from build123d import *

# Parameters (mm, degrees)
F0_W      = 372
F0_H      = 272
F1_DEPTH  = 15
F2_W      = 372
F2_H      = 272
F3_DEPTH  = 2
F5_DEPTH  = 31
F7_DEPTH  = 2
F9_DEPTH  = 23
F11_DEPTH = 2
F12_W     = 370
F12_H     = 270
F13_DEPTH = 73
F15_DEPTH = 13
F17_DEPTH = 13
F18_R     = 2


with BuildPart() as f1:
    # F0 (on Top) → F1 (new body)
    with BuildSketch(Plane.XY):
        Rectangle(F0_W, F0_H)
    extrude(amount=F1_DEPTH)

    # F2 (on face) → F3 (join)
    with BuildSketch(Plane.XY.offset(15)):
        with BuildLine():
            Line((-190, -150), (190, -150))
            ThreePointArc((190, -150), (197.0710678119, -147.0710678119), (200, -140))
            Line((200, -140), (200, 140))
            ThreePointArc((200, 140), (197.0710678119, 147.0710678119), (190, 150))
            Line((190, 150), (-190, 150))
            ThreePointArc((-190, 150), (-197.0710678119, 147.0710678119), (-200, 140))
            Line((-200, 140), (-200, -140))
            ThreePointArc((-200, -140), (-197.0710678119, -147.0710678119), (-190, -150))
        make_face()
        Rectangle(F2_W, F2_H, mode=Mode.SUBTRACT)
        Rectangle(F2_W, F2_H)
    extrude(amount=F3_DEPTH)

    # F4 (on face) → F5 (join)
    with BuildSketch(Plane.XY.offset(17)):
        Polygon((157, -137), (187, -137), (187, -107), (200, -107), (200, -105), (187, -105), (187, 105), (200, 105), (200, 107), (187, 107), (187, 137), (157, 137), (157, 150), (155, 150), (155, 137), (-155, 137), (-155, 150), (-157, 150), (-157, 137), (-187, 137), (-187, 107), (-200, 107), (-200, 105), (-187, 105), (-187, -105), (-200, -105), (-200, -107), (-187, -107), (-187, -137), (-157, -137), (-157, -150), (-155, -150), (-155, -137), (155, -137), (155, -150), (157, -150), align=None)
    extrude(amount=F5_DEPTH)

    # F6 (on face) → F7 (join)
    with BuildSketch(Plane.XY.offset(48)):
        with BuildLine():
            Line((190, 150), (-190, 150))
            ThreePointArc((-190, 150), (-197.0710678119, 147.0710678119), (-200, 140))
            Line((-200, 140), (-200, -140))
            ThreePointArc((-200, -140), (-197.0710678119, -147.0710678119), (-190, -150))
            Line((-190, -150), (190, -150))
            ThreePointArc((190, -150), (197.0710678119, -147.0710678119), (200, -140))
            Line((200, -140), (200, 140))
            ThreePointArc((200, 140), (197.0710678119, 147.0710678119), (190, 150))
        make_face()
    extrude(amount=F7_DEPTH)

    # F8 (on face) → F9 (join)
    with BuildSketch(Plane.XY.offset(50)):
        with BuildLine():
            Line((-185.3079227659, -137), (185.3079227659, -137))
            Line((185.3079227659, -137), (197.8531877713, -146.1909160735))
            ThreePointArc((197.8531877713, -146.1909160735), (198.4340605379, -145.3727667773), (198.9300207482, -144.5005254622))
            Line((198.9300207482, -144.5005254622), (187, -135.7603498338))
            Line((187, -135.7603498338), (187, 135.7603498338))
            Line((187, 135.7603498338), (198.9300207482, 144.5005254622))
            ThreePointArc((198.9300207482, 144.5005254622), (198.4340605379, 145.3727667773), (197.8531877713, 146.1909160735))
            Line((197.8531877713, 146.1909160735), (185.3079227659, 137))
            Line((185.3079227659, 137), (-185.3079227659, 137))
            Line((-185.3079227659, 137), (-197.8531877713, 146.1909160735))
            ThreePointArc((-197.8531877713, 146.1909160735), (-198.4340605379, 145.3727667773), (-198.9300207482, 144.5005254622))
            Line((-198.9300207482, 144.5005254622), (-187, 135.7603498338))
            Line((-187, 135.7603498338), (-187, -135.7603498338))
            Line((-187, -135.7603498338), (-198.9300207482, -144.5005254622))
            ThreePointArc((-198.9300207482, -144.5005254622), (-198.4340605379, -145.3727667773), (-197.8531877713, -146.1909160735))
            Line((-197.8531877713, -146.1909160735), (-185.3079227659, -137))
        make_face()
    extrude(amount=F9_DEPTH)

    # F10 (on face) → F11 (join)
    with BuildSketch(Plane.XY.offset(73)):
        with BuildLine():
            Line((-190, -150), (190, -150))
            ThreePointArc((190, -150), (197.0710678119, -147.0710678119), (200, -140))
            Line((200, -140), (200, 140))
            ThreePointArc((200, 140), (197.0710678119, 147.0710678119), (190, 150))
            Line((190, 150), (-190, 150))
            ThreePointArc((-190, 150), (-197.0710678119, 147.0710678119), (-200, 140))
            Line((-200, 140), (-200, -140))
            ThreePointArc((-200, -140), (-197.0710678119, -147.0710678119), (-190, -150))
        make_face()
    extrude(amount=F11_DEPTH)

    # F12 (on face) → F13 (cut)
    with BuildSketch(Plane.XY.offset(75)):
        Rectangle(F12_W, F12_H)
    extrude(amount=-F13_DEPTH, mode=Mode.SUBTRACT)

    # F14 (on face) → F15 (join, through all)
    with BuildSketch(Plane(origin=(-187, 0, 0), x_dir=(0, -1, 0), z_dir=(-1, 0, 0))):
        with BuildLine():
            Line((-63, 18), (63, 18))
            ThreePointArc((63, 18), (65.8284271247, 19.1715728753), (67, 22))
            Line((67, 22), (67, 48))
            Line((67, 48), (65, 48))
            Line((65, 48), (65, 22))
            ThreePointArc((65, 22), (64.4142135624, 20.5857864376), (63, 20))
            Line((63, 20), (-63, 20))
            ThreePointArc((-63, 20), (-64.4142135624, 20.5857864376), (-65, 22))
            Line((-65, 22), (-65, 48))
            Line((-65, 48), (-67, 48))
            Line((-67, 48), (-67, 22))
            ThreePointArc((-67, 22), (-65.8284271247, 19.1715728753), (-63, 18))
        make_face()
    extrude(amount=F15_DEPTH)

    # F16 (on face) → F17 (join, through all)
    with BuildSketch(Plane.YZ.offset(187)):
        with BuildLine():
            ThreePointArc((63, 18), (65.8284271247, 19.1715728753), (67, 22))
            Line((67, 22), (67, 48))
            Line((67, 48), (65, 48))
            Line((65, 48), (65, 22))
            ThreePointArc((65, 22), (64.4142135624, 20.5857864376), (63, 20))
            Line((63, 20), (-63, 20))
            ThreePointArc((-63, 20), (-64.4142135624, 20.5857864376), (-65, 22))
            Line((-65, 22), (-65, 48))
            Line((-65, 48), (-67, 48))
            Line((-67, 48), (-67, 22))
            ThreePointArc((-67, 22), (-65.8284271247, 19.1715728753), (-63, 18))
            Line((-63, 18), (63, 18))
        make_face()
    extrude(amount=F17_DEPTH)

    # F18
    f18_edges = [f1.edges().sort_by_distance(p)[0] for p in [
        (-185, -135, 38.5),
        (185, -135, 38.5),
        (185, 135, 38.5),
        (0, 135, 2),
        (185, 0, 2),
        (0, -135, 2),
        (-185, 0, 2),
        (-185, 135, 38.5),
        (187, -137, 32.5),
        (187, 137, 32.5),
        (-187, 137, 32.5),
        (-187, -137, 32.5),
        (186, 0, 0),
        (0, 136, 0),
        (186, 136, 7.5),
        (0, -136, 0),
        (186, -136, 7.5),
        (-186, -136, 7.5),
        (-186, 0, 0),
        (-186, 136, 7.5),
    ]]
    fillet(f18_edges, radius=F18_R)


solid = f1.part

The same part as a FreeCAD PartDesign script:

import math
import FreeCAD as App
import Part
import Sketcher

V = App.Vector


def edges_at(feature, points):
    """Names of the edges that pass closest to the given points."""
    edges = feature.Shape.Edges
    near = lambda p: min(range(len(edges)), key=lambda i: edges[i].distToShape(Part.Vertex(*p))[0])
    return sorted({f"Edge{near(p) + 1}" for p in points})


def add_polygon(sketch, points):
    """Adds a closed chain of lines whose ends are joined by coincident constraints."""
    first, n = sketch.GeometryCount, len(points)
    for a, b in zip(points, points[1:] + points[:1]):
        sketch.addGeometry(Part.LineSegment(App.Vector(*a, 0), App.Vector(*b, 0)), False)
    for i in range(n):
        sketch.addConstraint(Sketcher.Constraint("Coincident", first + i, 2, first + (i + 1) % n, 1))

doc = App.newDocument("Part")
body = doc.addObject("PartDesign::Body", "Body")

# Sketch on XY plane
sketch1 = body.newObject("Sketcher::SketchObject", "Sketch")
sketch1.AttachmentSupport = (doc.getObject("XY_Plane"), [""])
sketch1.MapMode = "FlatFace"
add_polygon(sketch1, [(-186, 136), (-186, -136), (186, -136), (186, 136)])  # lines 0-3
sketch1.addConstraint(Sketcher.Constraint("Vertical", 0))
sketch1.addConstraint(Sketcher.Constraint("Horizontal", 1))
sketch1.addConstraint(Sketcher.Constraint("Vertical", 2))
sketch1.addConstraint(Sketcher.Constraint("Horizontal", 3))
sketch1.addConstraint(Sketcher.Constraint("Symmetric", 0, 2, 2, 2, -1, 1))
sketch1.addConstraint(Sketcher.Constraint("DistanceX", 1, 1, 1, 2, 372.0))
sketch1.addConstraint(Sketcher.Constraint("DistanceY", 0, 2, 0, 1, 272.0))
pad1 = body.newObject("PartDesign::Pad", "Pad")
pad1.Profile = sketch1
pad1.Length = 15

# Sketch on XY plane
sketch2 = body.newObject("Sketcher::SketchObject", "Sketch001")
sketch2.AttachmentSupport = (doc.getObject("XY_Plane"), [""])
sketch2.MapMode = "FlatFace"
sketch2.AttachmentOffset = App.Placement(V(0, 0, 15), App.Rotation())
sketch2.addGeometry(Part.LineSegment(V(-190, -150, 0), V(190, -150, 0)), False)
sketch2.addGeometry(Part.ArcOfCircle(Part.Circle(V(190, -140, 0), V(0, 0, 1), 10), math.radians(-90), math.radians(0)), False)
sketch2.addGeometry(Part.LineSegment(V(200, -140, 0), V(200, 140, 0)), False)
sketch2.addGeometry(Part.ArcOfCircle(Part.Circle(V(190, 140, 0), V(0, 0, 1), 10), math.radians(0), math.radians(90)), False)
sketch2.addGeometry(Part.LineSegment(V(190, 150, 0), V(-190, 150, 0)), False)
sketch2.addGeometry(Part.ArcOfCircle(Part.Circle(V(-190, 140, 0), V(0, 0, 1), 10), math.radians(90), math.radians(180)), False)
sketch2.addGeometry(Part.LineSegment(V(-200, 140, 0), V(-200, -140, 0)), False)
sketch2.addGeometry(Part.ArcOfCircle(Part.Circle(V(-190, -140, 0), V(0, 0, 1), 10), math.radians(180), math.radians(270)), False)
sketch2.addConstraint(Sketcher.Constraint("Tangent", 0, 2, 1, 1))
sketch2.addConstraint(Sketcher.Constraint("Tangent", 1, 2, 2, 1))
sketch2.addConstraint(Sketcher.Constraint("Tangent", 2, 2, 3, 1))
sketch2.addConstraint(Sketcher.Constraint("Tangent", 3, 2, 4, 1))
sketch2.addConstraint(Sketcher.Constraint("Tangent", 4, 2, 5, 1))
sketch2.addConstraint(Sketcher.Constraint("Tangent", 5, 2, 6, 1))
sketch2.addConstraint(Sketcher.Constraint("Tangent", 6, 2, 7, 1))
sketch2.addConstraint(Sketcher.Constraint("Tangent", 7, 2, 0, 1))
sketch2.addConstraint(Sketcher.Constraint("Horizontal", 0))
sketch2.addConstraint(Sketcher.Constraint("Vertical", 2))
sketch2.addConstraint(Sketcher.Constraint("Horizontal", 4))
sketch2.addConstraint(Sketcher.Constraint("Vertical", 6))
sketch2.addConstraint(Sketcher.Constraint("Equal", 1, 3))
sketch2.addConstraint(Sketcher.Constraint("Equal", 3, 5))
sketch2.addConstraint(Sketcher.Constraint("Equal", 5, 7))
sketch2.addConstraint(Sketcher.Constraint("Symmetric", 1, 3, 5, 3, -1, 1))
sketch2.addConstraint(Sketcher.Constraint("Radius", 1, 10.0))
sketch2.addConstraint(Sketcher.Constraint("DistanceX", 0, 1, 0, 2, 380.0))
sketch2.addConstraint(Sketcher.Constraint("DistanceY", 2, 1, 2, 2, 280.0))
pad2 = body.newObject("PartDesign::Pad", "Pad001")
pad2.Profile = sketch2
pad2.Length = 2

# Sketch on XY plane
sketch3 = body.newObject("Sketcher::SketchObject", "Sketch002")
sketch3.AttachmentSupport = (doc.getObject("XY_Plane"), [""])
sketch3.MapMode = "FlatFace"
sketch3.AttachmentOffset = App.Placement(V(0, 0, 17), App.Rotation())
add_polygon(sketch3, [(157, -137), (187, -137), (187, -107), (200, -107), (200, -105), (187, -105), (187, 105), (200, 105), (200, 107), (187, 107), (187, 137), (157, 137), (157, 150), (155, 150), (155, 137), (-155, 137), (-155, 150), (-157, 150), (-157, 137), (-187, 137), (-187, 107), (-200, 107), (-200, 105), (-187, 105), (-187, -105), (-200, -105), (-200, -107), (-187, -107), (-187, -137), (-157, -137), (-157, -150), (-155, -150), (-155, -137), (155, -137), (155, -150), (157, -150)])  # lines 0-35
sketch3.addConstraint(Sketcher.Constraint("Horizontal", 0))
sketch3.addConstraint(Sketcher.Constraint("Vertical", 1))
sketch3.addConstraint(Sketcher.Constraint("Horizontal", 2))
sketch3.addConstraint(Sketcher.Constraint("Vertical", 3))
sketch3.addConstraint(Sketcher.Constraint("Horizontal", 4))
sketch3.addConstraint(Sketcher.Constraint("Vertical", 5))
sketch3.addConstraint(Sketcher.Constraint("Horizontal", 6))
sketch3.addConstraint(Sketcher.Constraint("Vertical", 7))
sketch3.addConstraint(Sketcher.Constraint("Horizontal", 8))
sketch3.addConstraint(Sketcher.Constraint("Vertical", 9))
sketch3.addConstraint(Sketcher.Constraint("Horizontal", 10))
sketch3.addConstraint(Sketcher.Constraint("Vertical", 11))
sketch3.addConstraint(Sketcher.Constraint("Horizontal", 12))
sketch3.addConstraint(Sketcher.Constraint("Vertical", 13))
sketch3.addConstraint(Sketcher.Constraint("Horizontal", 14))
sketch3.addConstraint(Sketcher.Constraint("Vertical", 15))
sketch3.addConstraint(Sketcher.Constraint("Horizontal", 16))
sketch3.addConstraint(Sketcher.Constraint("Vertical", 17))
sketch3.addConstraint(Sketcher.Constraint("Horizontal", 18))
sketch3.addConstraint(Sketcher.Constraint("Vertical", 19))
sketch3.addConstraint(Sketcher.Constraint("Horizontal", 20))
sketch3.addConstraint(Sketcher.Constraint("Vertical", 21))
sketch3.addConstraint(Sketcher.Constraint("Horizontal", 22))
sketch3.addConstraint(Sketcher.Constraint("Vertical", 23))
sketch3.addConstraint(Sketcher.Constraint("Horizontal", 24))
sketch3.addConstraint(Sketcher.Constraint("Vertical", 25))
sketch3.addConstraint(Sketcher.Constraint("Horizontal", 26))
sketch3.addConstraint(Sketcher.Constraint("Vertical", 27))
sketch3.addConstraint(Sketcher.Constraint("Horizontal", 28))
sketch3.addConstraint(Sketcher.Constraint("Vertical", 29))
sketch3.addConstraint(Sketcher.Constraint("Horizontal", 30))
sketch3.addConstraint(Sketcher.Constraint("Vertical", 31))
sketch3.addConstraint(Sketcher.Constraint("Horizontal", 32))
sketch3.addConstraint(Sketcher.Constraint("Vertical", 33))
sketch3.addConstraint(Sketcher.Constraint("Horizontal", 34))
sketch3.addConstraint(Sketcher.Constraint("Vertical", 35))
sketch3.addConstraint(Sketcher.Constraint("Symmetric", 0, 2, 18, 2, -1, 1))
sketch3.addConstraint(Sketcher.Constraint("Symmetric", 2, 2, 20, 2, -1, 1))
sketch3.addConstraint(Sketcher.Constraint("Symmetric", 4, 2, 22, 2, -1, 1))
sketch3.addConstraint(Sketcher.Constraint("Symmetric", 6, 2, 24, 2, -1, 1))
sketch3.addConstraint(Sketcher.Constraint("Symmetric", 8, 2, 26, 2, -1, 1))
sketch3.addConstraint(Sketcher.Constraint("Symmetric", 10, 2, 28, 2, -1, 1))
sketch3.addConstraint(Sketcher.Constraint("Symmetric", 12, 2, 30, 2, -1, 1))
sketch3.addConstraint(Sketcher.Constraint("Symmetric", 14, 2, 32, 2, -1, 1))
sketch3.addConstraint(Sketcher.Constraint("Symmetric", 16, 2, 34, 2, -1, 1))
sketch3.addConstraint(Sketcher.Constraint("Symmetric", 12, 2, 15, 2, -2))
sketch3.addConstraint(Sketcher.Constraint("Symmetric", 10, 2, 17, 2, -2))
sketch3.addConstraint(Sketcher.Constraint("Symmetric", 8, 2, 19, 2, -2))
sketch3.addConstraint(Sketcher.Constraint("Symmetric", 6, 2, 21, 2, -2))
sketch3.addConstraint(Sketcher.Constraint("Horizontal", 10, 2, 13, 2))
sketch3.addConstraint(Sketcher.Constraint("Vertical", 1, 2, 4, 2))
sketch3.addConstraint(Sketcher.Constraint("Equal", 28, 1))
sketch3.addConstraint(Sketcher.Constraint("Equal", 34, 3))
sketch3.addConstraint(Sketcher.Constraint("Equal", 26, 11))
sketch3.addConstraint(Sketcher.Constraint("DistanceX", 0, 1, 0, 2, 30.0))
sketch3.addConstraint(Sketcher.Constraint("DistanceX", 2, 1, 2, 2, 13.0))
sketch3.addConstraint(Sketcher.Constraint("DistanceX", 12, 2, 12, 1, 2.0))
sketch3.addConstraint(Sketcher.Constraint("DistanceX", 14, 2, 14, 1, 310.0))
sketch3.addConstraint(Sketcher.Constraint("DistanceY", 5, 1, 5, 2, 210.0))
pad3 = body.newObject("PartDesign::Pad", "Pad002")
pad3.Profile = sketch3
pad3.Length = 31

# Sketch on XY plane
sketch4 = body.newObject("Sketcher::SketchObject", "Sketch003")
sketch4.AttachmentSupport = (doc.getObject("XY_Plane"), [""])
sketch4.MapMode = "FlatFace"
sketch4.AttachmentOffset = App.Placement(V(0, 0, 48), App.Rotation())
sketch4.addGeometry(Part.LineSegment(V(190, 150, 0), V(-190, 150, 0)), False)
sketch4.addGeometry(Part.ArcOfCircle(Part.Circle(V(-190, 140, 0), V(0, 0, 1), 10), math.radians(90), math.radians(180)), False)
sketch4.addGeometry(Part.LineSegment(V(-200, 140, 0), V(-200, -140, 0)), False)
sketch4.addGeometry(Part.ArcOfCircle(Part.Circle(V(-190, -140, 0), V(0, 0, 1), 10), math.radians(180), math.radians(270)), False)
sketch4.addGeometry(Part.LineSegment(V(-190, -150, 0), V(190, -150, 0)), False)
sketch4.addGeometry(Part.ArcOfCircle(Part.Circle(V(190, -140, 0), V(0, 0, 1), 10), math.radians(-90), math.radians(0)), False)
sketch4.addGeometry(Part.LineSegment(V(200, -140, 0), V(200, 140, 0)), False)
sketch4.addGeometry(Part.ArcOfCircle(Part.Circle(V(190, 140, 0), V(0, 0, 1), 10), math.radians(0), math.radians(90)), False)
sketch4.addConstraint(Sketcher.Constraint("Tangent", 0, 2, 1, 1))
sketch4.addConstraint(Sketcher.Constraint("Tangent", 1, 2, 2, 1))
sketch4.addConstraint(Sketcher.Constraint("Tangent", 2, 2, 3, 1))
sketch4.addConstraint(Sketcher.Constraint("Tangent", 3, 2, 4, 1))
sketch4.addConstraint(Sketcher.Constraint("Tangent", 4, 2, 5, 1))
sketch4.addConstraint(Sketcher.Constraint("Tangent", 5, 2, 6, 1))
sketch4.addConstraint(Sketcher.Constraint("Tangent", 6, 2, 7, 1))
sketch4.addConstraint(Sketcher.Constraint("Tangent", 7, 2, 0, 1))
sketch4.addConstraint(Sketcher.Constraint("Horizontal", 0))
sketch4.addConstraint(Sketcher.Constraint("Vertical", 2))
sketch4.addConstraint(Sketcher.Constraint("Horizontal", 4))
sketch4.addConstraint(Sketcher.Constraint("Vertical", 6))
sketch4.addConstraint(Sketcher.Constraint("Equal", 1, 3))
sketch4.addConstraint(Sketcher.Constraint("Equal", 3, 5))
sketch4.addConstraint(Sketcher.Constraint("Equal", 5, 7))
sketch4.addConstraint(Sketcher.Constraint("Symmetric", 1, 3, 5, 3, -1, 1))
sketch4.addConstraint(Sketcher.Constraint("Radius", 1, 10.0))
sketch4.addConstraint(Sketcher.Constraint("DistanceX", 0, 2, 0, 1, 380.0))
sketch4.addConstraint(Sketcher.Constraint("DistanceY", 2, 2, 2, 1, 280.0))
pad4 = body.newObject("PartDesign::Pad", "Pad003")
pad4.Profile = sketch4
pad4.Length = 2

# Sketch on XY plane
sketch5 = body.newObject("Sketcher::SketchObject", "Sketch004")
sketch5.AttachmentSupport = (doc.getObject("XY_Plane"), [""])
sketch5.MapMode = "FlatFace"
sketch5.AttachmentOffset = App.Placement(V(0, 0, 50), App.Rotation())
sketch5.addGeometry(Part.LineSegment(V(-185.3, -137, 0), V(185.3, -137, 0)), False)
sketch5.addGeometry(Part.LineSegment(V(185.3, -137, 0), V(197.9, -146.2, 0)), False)
sketch5.addGeometry(Part.ArcOfCircle(Part.Circle(V(190, -140, 0), V(0, 0, 1), 10), math.radians(-38.25), math.radians(-26.75)), False)
sketch5.addGeometry(Part.LineSegment(V(198.9, -144.5, 0), V(187, -135.8, 0)), False)
sketch5.addGeometry(Part.LineSegment(V(187, -135.8, 0), V(187, 135.8, 0)), False)
sketch5.addGeometry(Part.LineSegment(V(187, 135.8, 0), V(198.9, 144.5, 0)), False)
sketch5.addGeometry(Part.ArcOfCircle(Part.Circle(V(190, 140, 0), V(0, 0, 1), 10), math.radians(26.75), math.radians(38.25)), False)
sketch5.addGeometry(Part.LineSegment(V(197.9, 146.2, 0), V(185.3, 137, 0)), False)
sketch5.addGeometry(Part.LineSegment(V(185.3, 137, 0), V(-185.3, 137, 0)), False)
sketch5.addGeometry(Part.LineSegment(V(-185.3, 137, 0), V(-197.9, 146.2, 0)), False)
sketch5.addGeometry(Part.ArcOfCircle(Part.Circle(V(-190, 140, 0), V(0, 0, 1), 10), math.radians(141.75), math.radians(153.25)), False)
sketch5.addGeometry(Part.LineSegment(V(-198.9, 144.5, 0), V(-187, 135.8, 0)), False)
sketch5.addGeometry(Part.LineSegment(V(-187, 135.8, 0), V(-187, -135.8, 0)), False)
sketch5.addGeometry(Part.LineSegment(V(-187, -135.8, 0), V(-198.9, -144.5, 0)), False)
sketch5.addGeometry(Part.ArcOfCircle(Part.Circle(V(-190, -140, 0), V(0, 0, 1), 10), math.radians(-153.25), math.radians(-141.75)), False)
sketch5.addGeometry(Part.LineSegment(V(-197.9, -146.2, 0), V(-185.3, -137, 0)), False)
sketch5.addConstraint(Sketcher.Constraint("Coincident", 0, 2, 1, 1))
sketch5.addConstraint(Sketcher.Constraint("Coincident", 1, 2, 2, 1))
sketch5.addConstraint(Sketcher.Constraint("Coincident", 2, 2, 3, 1))
sketch5.addConstraint(Sketcher.Constraint("Coincident", 3, 2, 4, 1))
sketch5.addConstraint(Sketcher.Constraint("Coincident", 4, 2, 5, 1))
sketch5.addConstraint(Sketcher.Constraint("Coincident", 5, 2, 6, 1))
sketch5.addConstraint(Sketcher.Constraint("Coincident", 6, 2, 7, 1))
sketch5.addConstraint(Sketcher.Constraint("Coincident", 7, 2, 8, 1))
sketch5.addConstraint(Sketcher.Constraint("Coincident", 8, 2, 9, 1))
sketch5.addConstraint(Sketcher.Constraint("Coincident", 9, 2, 10, 1))
sketch5.addConstraint(Sketcher.Constraint("Coincident", 10, 2, 11, 1))
sketch5.addConstraint(Sketcher.Constraint("Coincident", 11, 2, 12, 1))
sketch5.addConstraint(Sketcher.Constraint("Coincident", 12, 2, 13, 1))
sketch5.addConstraint(Sketcher.Constraint("Coincident", 13, 2, 14, 1))
sketch5.addConstraint(Sketcher.Constraint("Coincident", 14, 2, 15, 1))
sketch5.addConstraint(Sketcher.Constraint("Coincident", 15, 2, 0, 1))
sketch5.addConstraint(Sketcher.Constraint("Horizontal", 0))
sketch5.addConstraint(Sketcher.Constraint("Vertical", 4))
sketch5.addConstraint(Sketcher.Constraint("Horizontal", 8))
sketch5.addConstraint(Sketcher.Constraint("Vertical", 12))
sketch5.addConstraint(Sketcher.Constraint("Equal", 2, 6))
sketch5.addConstraint(Sketcher.Constraint("Equal", 6, 10))
sketch5.addConstraint(Sketcher.Constraint("Equal", 10, 14))
sketch5.addConstraint(Sketcher.Constraint("Symmetric", 2, 3, 10, 3, -1, 1))
sketch5.addConstraint(Sketcher.Constraint("Symmetric", 6, 3, 14, 3, -1, 1))
sketch5.addConstraint(Sketcher.Constraint("Symmetric", 0, 2, 8, 2, -1, 1))
sketch5.addConstraint(Sketcher.Constraint("Symmetric", 3, 2, 11, 2, -1, 1))
sketch5.addConstraint(Sketcher.Constraint("Symmetric", 6, 3, 10, 3, -2))
sketch5.addConstraint(Sketcher.Constraint("Parallel", 1, 3))
sketch5.addConstraint(Sketcher.Constraint("Parallel", 5, 7))
sketch5.addConstraint(Sketcher.Constraint("Parallel", 3, 9))
sketch5.addConstraint(Sketcher.Constraint("Parallel", 9, 11))
sketch5.addConstraint(Sketcher.Constraint("Parallel", 7, 13))
sketch5.addConstraint(Sketcher.Constraint("Parallel", 13, 15))
sketch5.addConstraint(Sketcher.Constraint("Horizontal", 6, 2, 9, 2))
sketch5.addConstraint(Sketcher.Constraint("Horizontal", 5, 2, 10, 2))
sketch5.addConstraint(Sketcher.Constraint("Horizontal", 4, 2, 11, 2))
sketch5.addConstraint(Sketcher.Constraint("Horizontal", 3, 2, 12, 2))
sketch5.addConstraint(Sketcher.Constraint("Horizontal", 1, 2, 14, 2))
sketch5.addConstraint(Sketcher.Constraint("Radius", 2, 10.0))
sketch5.addConstraint(Sketcher.Constraint("DistanceX", -1, 1, 2, 3, 190.0))
sketch5.addConstraint(Sketcher.Constraint("DistanceY", 2, 3, -1, 1, 140.0))
sketch5.addConstraint(Sketcher.Constraint("DistanceY", 0, 2, -1, 1, 137.0))
sketch5.addConstraint(Sketcher.Constraint("DistanceX", -1, 1, 3, 2, 187.0))
sketch5.addConstraint(Sketcher.Constraint("DistanceY", 4, 1, 4, 2, 271.5207))
sketch5.addConstraint(Sketcher.Constraint("Distance", 1, 15.55174))
sketch5.addConstraint(Sketcher.Constraint("DistanceX", 0, 1, 0, 2, 370.615846))
pad5 = body.newObject("PartDesign::Pad", "Pad004")
pad5.Profile = sketch5
pad5.Length = 23

# Sketch on XY plane
sketch6 = body.newObject("Sketcher::SketchObject", "Sketch005")
sketch6.AttachmentSupport = (doc.getObject("XY_Plane"), [""])
sketch6.MapMode = "FlatFace"
sketch6.AttachmentOffset = App.Placement(V(0, 0, 73), App.Rotation())
sketch6.addGeometry(Part.LineSegment(V(-190, -150, 0), V(190, -150, 0)), False)
sketch6.addGeometry(Part.ArcOfCircle(Part.Circle(V(190, -140, 0), V(0, 0, 1), 10), math.radians(-90), math.radians(0)), False)
sketch6.addGeometry(Part.LineSegment(V(200, -140, 0), V(200, 140, 0)), False)
sketch6.addGeometry(Part.ArcOfCircle(Part.Circle(V(190, 140, 0), V(0, 0, 1), 10), math.radians(0), math.radians(90)), False)
sketch6.addGeometry(Part.LineSegment(V(190, 150, 0), V(-190, 150, 0)), False)
sketch6.addGeometry(Part.ArcOfCircle(Part.Circle(V(-190, 140, 0), V(0, 0, 1), 10), math.radians(90), math.radians(180)), False)
sketch6.addGeometry(Part.LineSegment(V(-200, 140, 0), V(-200, -140, 0)), False)
sketch6.addGeometry(Part.ArcOfCircle(Part.Circle(V(-190, -140, 0), V(0, 0, 1), 10), math.radians(180), math.radians(270)), False)
sketch6.addConstraint(Sketcher.Constraint("Tangent", 0, 2, 1, 1))
sketch6.addConstraint(Sketcher.Constraint("Tangent", 1, 2, 2, 1))
sketch6.addConstraint(Sketcher.Constraint("Tangent", 2, 2, 3, 1))
sketch6.addConstraint(Sketcher.Constraint("Tangent", 3, 2, 4, 1))
sketch6.addConstraint(Sketcher.Constraint("Tangent", 4, 2, 5, 1))
sketch6.addConstraint(Sketcher.Constraint("Tangent", 5, 2, 6, 1))
sketch6.addConstraint(Sketcher.Constraint("Tangent", 6, 2, 7, 1))
sketch6.addConstraint(Sketcher.Constraint("Tangent", 7, 2, 0, 1))
sketch6.addConstraint(Sketcher.Constraint("Horizontal", 0))
sketch6.addConstraint(Sketcher.Constraint("Vertical", 2))
sketch6.addConstraint(Sketcher.Constraint("Horizontal", 4))
sketch6.addConstraint(Sketcher.Constraint("Vertical", 6))
sketch6.addConstraint(Sketcher.Constraint("Equal", 1, 3))
sketch6.addConstraint(Sketcher.Constraint("Equal", 3, 5))
sketch6.addConstraint(Sketcher.Constraint("Equal", 5, 7))
sketch6.addConstraint(Sketcher.Constraint("Symmetric", 1, 3, 5, 3, -1, 1))
sketch6.addConstraint(Sketcher.Constraint("Radius", 1, 10.0))
sketch6.addConstraint(Sketcher.Constraint("DistanceX", 0, 1, 0, 2, 380.0))
sketch6.addConstraint(Sketcher.Constraint("DistanceY", 2, 1, 2, 2, 280.0))
pad6 = body.newObject("PartDesign::Pad", "Pad005")
pad6.Profile = sketch6
pad6.Length = 2

# Sketch on XY plane
sketch7 = body.newObject("Sketcher::SketchObject", "Sketch006")
sketch7.AttachmentSupport = (doc.getObject("XY_Plane"), [""])
sketch7.MapMode = "FlatFace"
sketch7.AttachmentOffset = App.Placement(V(0, 0, 75), App.Rotation())
add_polygon(sketch7, [(-185, 135), (-185, -135), (185, -135), (185, 135)])  # lines 0-3
sketch7.addConstraint(Sketcher.Constraint("Vertical", 0))
sketch7.addConstraint(Sketcher.Constraint("Horizontal", 1))
sketch7.addConstraint(Sketcher.Constraint("Vertical", 2))
sketch7.addConstraint(Sketcher.Constraint("Horizontal", 3))
sketch7.addConstraint(Sketcher.Constraint("Symmetric", 0, 2, 2, 2, -1, 1))
sketch7.addConstraint(Sketcher.Constraint("DistanceX", 1, 1, 1, 2, 370.0))
sketch7.addConstraint(Sketcher.Constraint("DistanceY", 0, 2, 0, 1, 270.0))
pocket1 = body.newObject("PartDesign::Pocket", "Pocket")
pocket1.Profile = sketch7
pocket1.Length = 73

# Sketch on YZ plane
sketch8 = body.newObject("Sketcher::SketchObject", "Sketch007")
sketch8.AttachmentSupport = (doc.getObject("YZ_Plane"), [""])
sketch8.MapMode = "FlatFace"
sketch8.AttachmentOffset = App.Placement(V(0, 0, -187), App.Rotation())
sketch8.addGeometry(Part.LineSegment(V(63, 18, 0), V(-63, 18, 0)), False)
sketch8.addGeometry(Part.ArcOfCircle(Part.Circle(V(-63, 22, 0), V(0, 0, 1), 4), math.radians(180), math.radians(270)), False)
sketch8.addGeometry(Part.LineSegment(V(-67, 22, 0), V(-67, 48, 0)), False)
sketch8.addGeometry(Part.LineSegment(V(-67, 48, 0), V(-65, 48, 0)), False)
sketch8.addGeometry(Part.LineSegment(V(-65, 48, 0), V(-65, 22, 0)), False)
sketch8.addGeometry(Part.ArcOfCircle(Part.Circle(V(-63, 22, 0), V(0, 0, 1), 2), math.radians(180), math.radians(270)), False)
sketch8.addGeometry(Part.LineSegment(V(-63, 20, 0), V(63, 20, 0)), False)
sketch8.addGeometry(Part.ArcOfCircle(Part.Circle(V(63, 22, 0), V(0, 0, 1), 2), math.radians(-90), math.radians(0)), False)
sketch8.addGeometry(Part.LineSegment(V(65, 22, 0), V(65, 48, 0)), False)
sketch8.addGeometry(Part.LineSegment(V(65, 48, 0), V(67, 48, 0)), False)
sketch8.addGeometry(Part.LineSegment(V(67, 48, 0), V(67, 22, 0)), False)
sketch8.addGeometry(Part.ArcOfCircle(Part.Circle(V(63, 22, 0), V(0, 0, 1), 4), math.radians(-90), math.radians(0)), False)
sketch8.addConstraint(Sketcher.Constraint("Tangent", 0, 2, 1, 2))
sketch8.addConstraint(Sketcher.Constraint("Tangent", 1, 1, 2, 1))
sketch8.addConstraint(Sketcher.Constraint("Coincident", 2, 2, 3, 1))
sketch8.addConstraint(Sketcher.Constraint("Coincident", 3, 2, 4, 1))
sketch8.addConstraint(Sketcher.Constraint("Tangent", 4, 2, 5, 1))
sketch8.addConstraint(Sketcher.Constraint("Tangent", 5, 2, 6, 1))
sketch8.addConstraint(Sketcher.Constraint("Tangent", 6, 2, 7, 1))
sketch8.addConstraint(Sketcher.Constraint("Tangent", 7, 2, 8, 1))
sketch8.addConstraint(Sketcher.Constraint("Coincident", 8, 2, 9, 1))
sketch8.addConstraint(Sketcher.Constraint("Coincident", 9, 2, 10, 1))
sketch8.addConstraint(Sketcher.Constraint("Tangent", 10, 2, 11, 2))
sketch8.addConstraint(Sketcher.Constraint("Tangent", 11, 1, 0, 1))
sketch8.addConstraint(Sketcher.Constraint("Horizontal", 0))
sketch8.addConstraint(Sketcher.Constraint("Vertical", 2))
sketch8.addConstraint(Sketcher.Constraint("Horizontal", 3))
sketch8.addConstraint(Sketcher.Constraint("Vertical", 4))
sketch8.addConstraint(Sketcher.Constraint("Horizontal", 6))
sketch8.addConstraint(Sketcher.Constraint("Vertical", 8))
sketch8.addConstraint(Sketcher.Constraint("Horizontal", 9))
sketch8.addConstraint(Sketcher.Constraint("Vertical", 10))
sketch8.addConstraint(Sketcher.Constraint("Coincident", 5, 3, 1, 3))
sketch8.addConstraint(Sketcher.Constraint("Coincident", 11, 3, 7, 3))
sketch8.addConstraint(Sketcher.Constraint("Equal", 5, 7))
sketch8.addConstraint(Sketcher.Constraint("Symmetric", 3, 2, 8, 2, -2))
sketch8.addConstraint(Sketcher.Constraint("Radius", 1, 4.0))
sketch8.addConstraint(Sketcher.Constraint("Radius", 5, 2.0))
sketch8.addConstraint(Sketcher.Constraint("DistanceX", 0, 2, 0, 1, 126.0))
sketch8.addConstraint(Sketcher.Constraint("DistanceY", 2, 1, 2, 2, 26.0))
sketch8.addConstraint(Sketcher.Constraint("DistanceY", -1, 1, 1, 3, 22.0))
pad7 = body.newObject("PartDesign::Pad", "Pad006")
pad7.Profile = sketch8
pad7.Length = 13
pad7.Reversed = True

# Sketch on YZ plane
sketch9 = body.newObject("Sketcher::SketchObject", "Sketch008")
sketch9.AttachmentSupport = (doc.getObject("YZ_Plane"), [""])
sketch9.MapMode = "FlatFace"
sketch9.AttachmentOffset = App.Placement(V(0, 0, 187), App.Rotation())
sketch9.addGeometry(Part.ArcOfCircle(Part.Circle(V(63, 22, 0), V(0, 0, 1), 4), math.radians(-90), math.radians(0)), False)
sketch9.addGeometry(Part.LineSegment(V(67, 22, 0), V(67, 48, 0)), False)
sketch9.addGeometry(Part.LineSegment(V(67, 48, 0), V(65, 48, 0)), False)
sketch9.addGeometry(Part.LineSegment(V(65, 48, 0), V(65, 22, 0)), False)
sketch9.addGeometry(Part.ArcOfCircle(Part.Circle(V(63, 22, 0), V(0, 0, 1), 2), math.radians(-90), math.radians(0)), False)
sketch9.addGeometry(Part.LineSegment(V(63, 20, 0), V(-63, 20, 0)), False)
sketch9.addGeometry(Part.ArcOfCircle(Part.Circle(V(-63, 22, 0), V(0, 0, 1), 2), math.radians(180), math.radians(270)), False)
sketch9.addGeometry(Part.LineSegment(V(-65, 22, 0), V(-65, 48, 0)), False)
sketch9.addGeometry(Part.LineSegment(V(-65, 48, 0), V(-67, 48, 0)), False)
sketch9.addGeometry(Part.LineSegment(V(-67, 48, 0), V(-67, 22, 0)), False)
sketch9.addGeometry(Part.ArcOfCircle(Part.Circle(V(-63, 22, 0), V(0, 0, 1), 4), math.radians(180), math.radians(270)), False)
sketch9.addGeometry(Part.LineSegment(V(-63, 18, 0), V(63, 18, 0)), False)
sketch9.addConstraint(Sketcher.Constraint("Tangent", 0, 2, 1, 1))
sketch9.addConstraint(Sketcher.Constraint("Coincident", 1, 2, 2, 1))
sketch9.addConstraint(Sketcher.Constraint("Coincident", 2, 2, 3, 1))
sketch9.addConstraint(Sketcher.Constraint("Tangent", 3, 2, 4, 2))
sketch9.addConstraint(Sketcher.Constraint("Tangent", 4, 1, 5, 1))
sketch9.addConstraint(Sketcher.Constraint("Tangent", 5, 2, 6, 2))
sketch9.addConstraint(Sketcher.Constraint("Tangent", 6, 1, 7, 1))
sketch9.addConstraint(Sketcher.Constraint("Coincident", 7, 2, 8, 1))
sketch9.addConstraint(Sketcher.Constraint("Coincident", 8, 2, 9, 1))
sketch9.addConstraint(Sketcher.Constraint("Tangent", 9, 2, 10, 1))
sketch9.addConstraint(Sketcher.Constraint("Tangent", 10, 2, 11, 1))
sketch9.addConstraint(Sketcher.Constraint("Tangent", 11, 2, 0, 1))
sketch9.addConstraint(Sketcher.Constraint("Vertical", 1))
sketch9.addConstraint(Sketcher.Constraint("Horizontal", 2))
sketch9.addConstraint(Sketcher.Constraint("Vertical", 3))
sketch9.addConstraint(Sketcher.Constraint("Horizontal", 5))
sketch9.addConstraint(Sketcher.Constraint("Vertical", 7))
sketch9.addConstraint(Sketcher.Constraint("Horizontal", 8))
sketch9.addConstraint(Sketcher.Constraint("Vertical", 9))
sketch9.addConstraint(Sketcher.Constraint("Horizontal", 11))
sketch9.addConstraint(Sketcher.Constraint("Coincident", 4, 3, 0, 3))
sketch9.addConstraint(Sketcher.Constraint("Coincident", 10, 3, 6, 3))
sketch9.addConstraint(Sketcher.Constraint("Equal", 4, 6))
sketch9.addConstraint(Sketcher.Constraint("Symmetric", 2, 2, 7, 2, -2))
sketch9.addConstraint(Sketcher.Constraint("Radius", 0, 4.0))
sketch9.addConstraint(Sketcher.Constraint("Radius", 4, 2.0))
sketch9.addConstraint(Sketcher.Constraint("DistanceX", 5, 2, 5, 1, 126.0))
sketch9.addConstraint(Sketcher.Constraint("DistanceY", 1, 1, 1, 2, 26.0))
sketch9.addConstraint(Sketcher.Constraint("DistanceY", -1, 1, 0, 3, 22.0))
pad8 = body.newObject("PartDesign::Pad", "Pad007")
pad8.Profile = sketch9
pad8.Length = 13
doc.recompute()

fillet = body.newObject("PartDesign::Fillet", "Fillet")
fillet.Base = (pad8, edges_at(pad8, [
    (-185, -135, 38.5),
    (185, -135, 38.5),
    (185, 135, 38.5),
    (0, 135, 2),
    (185, 0, 2),
    (0, -135, 2),
    (-185, 0, 2),
    (-185, 135, 38.5),
    (187, -137, 32.5),
    (187, 137, 32.5),
    (-187, 137, 32.5),
    (-187, -137, 32.5),
    (186, 0, 0),
    (0, 136, 0),
    (186, 136, 7.5),
    (0, -136, 0),
    (186, -136, 7.5),
    (-186, -136, 7.5),
    (-186, 0, 0),
    (-186, 136, 7.5),
]))
fillet.Radius = 2

doc.recompute()
